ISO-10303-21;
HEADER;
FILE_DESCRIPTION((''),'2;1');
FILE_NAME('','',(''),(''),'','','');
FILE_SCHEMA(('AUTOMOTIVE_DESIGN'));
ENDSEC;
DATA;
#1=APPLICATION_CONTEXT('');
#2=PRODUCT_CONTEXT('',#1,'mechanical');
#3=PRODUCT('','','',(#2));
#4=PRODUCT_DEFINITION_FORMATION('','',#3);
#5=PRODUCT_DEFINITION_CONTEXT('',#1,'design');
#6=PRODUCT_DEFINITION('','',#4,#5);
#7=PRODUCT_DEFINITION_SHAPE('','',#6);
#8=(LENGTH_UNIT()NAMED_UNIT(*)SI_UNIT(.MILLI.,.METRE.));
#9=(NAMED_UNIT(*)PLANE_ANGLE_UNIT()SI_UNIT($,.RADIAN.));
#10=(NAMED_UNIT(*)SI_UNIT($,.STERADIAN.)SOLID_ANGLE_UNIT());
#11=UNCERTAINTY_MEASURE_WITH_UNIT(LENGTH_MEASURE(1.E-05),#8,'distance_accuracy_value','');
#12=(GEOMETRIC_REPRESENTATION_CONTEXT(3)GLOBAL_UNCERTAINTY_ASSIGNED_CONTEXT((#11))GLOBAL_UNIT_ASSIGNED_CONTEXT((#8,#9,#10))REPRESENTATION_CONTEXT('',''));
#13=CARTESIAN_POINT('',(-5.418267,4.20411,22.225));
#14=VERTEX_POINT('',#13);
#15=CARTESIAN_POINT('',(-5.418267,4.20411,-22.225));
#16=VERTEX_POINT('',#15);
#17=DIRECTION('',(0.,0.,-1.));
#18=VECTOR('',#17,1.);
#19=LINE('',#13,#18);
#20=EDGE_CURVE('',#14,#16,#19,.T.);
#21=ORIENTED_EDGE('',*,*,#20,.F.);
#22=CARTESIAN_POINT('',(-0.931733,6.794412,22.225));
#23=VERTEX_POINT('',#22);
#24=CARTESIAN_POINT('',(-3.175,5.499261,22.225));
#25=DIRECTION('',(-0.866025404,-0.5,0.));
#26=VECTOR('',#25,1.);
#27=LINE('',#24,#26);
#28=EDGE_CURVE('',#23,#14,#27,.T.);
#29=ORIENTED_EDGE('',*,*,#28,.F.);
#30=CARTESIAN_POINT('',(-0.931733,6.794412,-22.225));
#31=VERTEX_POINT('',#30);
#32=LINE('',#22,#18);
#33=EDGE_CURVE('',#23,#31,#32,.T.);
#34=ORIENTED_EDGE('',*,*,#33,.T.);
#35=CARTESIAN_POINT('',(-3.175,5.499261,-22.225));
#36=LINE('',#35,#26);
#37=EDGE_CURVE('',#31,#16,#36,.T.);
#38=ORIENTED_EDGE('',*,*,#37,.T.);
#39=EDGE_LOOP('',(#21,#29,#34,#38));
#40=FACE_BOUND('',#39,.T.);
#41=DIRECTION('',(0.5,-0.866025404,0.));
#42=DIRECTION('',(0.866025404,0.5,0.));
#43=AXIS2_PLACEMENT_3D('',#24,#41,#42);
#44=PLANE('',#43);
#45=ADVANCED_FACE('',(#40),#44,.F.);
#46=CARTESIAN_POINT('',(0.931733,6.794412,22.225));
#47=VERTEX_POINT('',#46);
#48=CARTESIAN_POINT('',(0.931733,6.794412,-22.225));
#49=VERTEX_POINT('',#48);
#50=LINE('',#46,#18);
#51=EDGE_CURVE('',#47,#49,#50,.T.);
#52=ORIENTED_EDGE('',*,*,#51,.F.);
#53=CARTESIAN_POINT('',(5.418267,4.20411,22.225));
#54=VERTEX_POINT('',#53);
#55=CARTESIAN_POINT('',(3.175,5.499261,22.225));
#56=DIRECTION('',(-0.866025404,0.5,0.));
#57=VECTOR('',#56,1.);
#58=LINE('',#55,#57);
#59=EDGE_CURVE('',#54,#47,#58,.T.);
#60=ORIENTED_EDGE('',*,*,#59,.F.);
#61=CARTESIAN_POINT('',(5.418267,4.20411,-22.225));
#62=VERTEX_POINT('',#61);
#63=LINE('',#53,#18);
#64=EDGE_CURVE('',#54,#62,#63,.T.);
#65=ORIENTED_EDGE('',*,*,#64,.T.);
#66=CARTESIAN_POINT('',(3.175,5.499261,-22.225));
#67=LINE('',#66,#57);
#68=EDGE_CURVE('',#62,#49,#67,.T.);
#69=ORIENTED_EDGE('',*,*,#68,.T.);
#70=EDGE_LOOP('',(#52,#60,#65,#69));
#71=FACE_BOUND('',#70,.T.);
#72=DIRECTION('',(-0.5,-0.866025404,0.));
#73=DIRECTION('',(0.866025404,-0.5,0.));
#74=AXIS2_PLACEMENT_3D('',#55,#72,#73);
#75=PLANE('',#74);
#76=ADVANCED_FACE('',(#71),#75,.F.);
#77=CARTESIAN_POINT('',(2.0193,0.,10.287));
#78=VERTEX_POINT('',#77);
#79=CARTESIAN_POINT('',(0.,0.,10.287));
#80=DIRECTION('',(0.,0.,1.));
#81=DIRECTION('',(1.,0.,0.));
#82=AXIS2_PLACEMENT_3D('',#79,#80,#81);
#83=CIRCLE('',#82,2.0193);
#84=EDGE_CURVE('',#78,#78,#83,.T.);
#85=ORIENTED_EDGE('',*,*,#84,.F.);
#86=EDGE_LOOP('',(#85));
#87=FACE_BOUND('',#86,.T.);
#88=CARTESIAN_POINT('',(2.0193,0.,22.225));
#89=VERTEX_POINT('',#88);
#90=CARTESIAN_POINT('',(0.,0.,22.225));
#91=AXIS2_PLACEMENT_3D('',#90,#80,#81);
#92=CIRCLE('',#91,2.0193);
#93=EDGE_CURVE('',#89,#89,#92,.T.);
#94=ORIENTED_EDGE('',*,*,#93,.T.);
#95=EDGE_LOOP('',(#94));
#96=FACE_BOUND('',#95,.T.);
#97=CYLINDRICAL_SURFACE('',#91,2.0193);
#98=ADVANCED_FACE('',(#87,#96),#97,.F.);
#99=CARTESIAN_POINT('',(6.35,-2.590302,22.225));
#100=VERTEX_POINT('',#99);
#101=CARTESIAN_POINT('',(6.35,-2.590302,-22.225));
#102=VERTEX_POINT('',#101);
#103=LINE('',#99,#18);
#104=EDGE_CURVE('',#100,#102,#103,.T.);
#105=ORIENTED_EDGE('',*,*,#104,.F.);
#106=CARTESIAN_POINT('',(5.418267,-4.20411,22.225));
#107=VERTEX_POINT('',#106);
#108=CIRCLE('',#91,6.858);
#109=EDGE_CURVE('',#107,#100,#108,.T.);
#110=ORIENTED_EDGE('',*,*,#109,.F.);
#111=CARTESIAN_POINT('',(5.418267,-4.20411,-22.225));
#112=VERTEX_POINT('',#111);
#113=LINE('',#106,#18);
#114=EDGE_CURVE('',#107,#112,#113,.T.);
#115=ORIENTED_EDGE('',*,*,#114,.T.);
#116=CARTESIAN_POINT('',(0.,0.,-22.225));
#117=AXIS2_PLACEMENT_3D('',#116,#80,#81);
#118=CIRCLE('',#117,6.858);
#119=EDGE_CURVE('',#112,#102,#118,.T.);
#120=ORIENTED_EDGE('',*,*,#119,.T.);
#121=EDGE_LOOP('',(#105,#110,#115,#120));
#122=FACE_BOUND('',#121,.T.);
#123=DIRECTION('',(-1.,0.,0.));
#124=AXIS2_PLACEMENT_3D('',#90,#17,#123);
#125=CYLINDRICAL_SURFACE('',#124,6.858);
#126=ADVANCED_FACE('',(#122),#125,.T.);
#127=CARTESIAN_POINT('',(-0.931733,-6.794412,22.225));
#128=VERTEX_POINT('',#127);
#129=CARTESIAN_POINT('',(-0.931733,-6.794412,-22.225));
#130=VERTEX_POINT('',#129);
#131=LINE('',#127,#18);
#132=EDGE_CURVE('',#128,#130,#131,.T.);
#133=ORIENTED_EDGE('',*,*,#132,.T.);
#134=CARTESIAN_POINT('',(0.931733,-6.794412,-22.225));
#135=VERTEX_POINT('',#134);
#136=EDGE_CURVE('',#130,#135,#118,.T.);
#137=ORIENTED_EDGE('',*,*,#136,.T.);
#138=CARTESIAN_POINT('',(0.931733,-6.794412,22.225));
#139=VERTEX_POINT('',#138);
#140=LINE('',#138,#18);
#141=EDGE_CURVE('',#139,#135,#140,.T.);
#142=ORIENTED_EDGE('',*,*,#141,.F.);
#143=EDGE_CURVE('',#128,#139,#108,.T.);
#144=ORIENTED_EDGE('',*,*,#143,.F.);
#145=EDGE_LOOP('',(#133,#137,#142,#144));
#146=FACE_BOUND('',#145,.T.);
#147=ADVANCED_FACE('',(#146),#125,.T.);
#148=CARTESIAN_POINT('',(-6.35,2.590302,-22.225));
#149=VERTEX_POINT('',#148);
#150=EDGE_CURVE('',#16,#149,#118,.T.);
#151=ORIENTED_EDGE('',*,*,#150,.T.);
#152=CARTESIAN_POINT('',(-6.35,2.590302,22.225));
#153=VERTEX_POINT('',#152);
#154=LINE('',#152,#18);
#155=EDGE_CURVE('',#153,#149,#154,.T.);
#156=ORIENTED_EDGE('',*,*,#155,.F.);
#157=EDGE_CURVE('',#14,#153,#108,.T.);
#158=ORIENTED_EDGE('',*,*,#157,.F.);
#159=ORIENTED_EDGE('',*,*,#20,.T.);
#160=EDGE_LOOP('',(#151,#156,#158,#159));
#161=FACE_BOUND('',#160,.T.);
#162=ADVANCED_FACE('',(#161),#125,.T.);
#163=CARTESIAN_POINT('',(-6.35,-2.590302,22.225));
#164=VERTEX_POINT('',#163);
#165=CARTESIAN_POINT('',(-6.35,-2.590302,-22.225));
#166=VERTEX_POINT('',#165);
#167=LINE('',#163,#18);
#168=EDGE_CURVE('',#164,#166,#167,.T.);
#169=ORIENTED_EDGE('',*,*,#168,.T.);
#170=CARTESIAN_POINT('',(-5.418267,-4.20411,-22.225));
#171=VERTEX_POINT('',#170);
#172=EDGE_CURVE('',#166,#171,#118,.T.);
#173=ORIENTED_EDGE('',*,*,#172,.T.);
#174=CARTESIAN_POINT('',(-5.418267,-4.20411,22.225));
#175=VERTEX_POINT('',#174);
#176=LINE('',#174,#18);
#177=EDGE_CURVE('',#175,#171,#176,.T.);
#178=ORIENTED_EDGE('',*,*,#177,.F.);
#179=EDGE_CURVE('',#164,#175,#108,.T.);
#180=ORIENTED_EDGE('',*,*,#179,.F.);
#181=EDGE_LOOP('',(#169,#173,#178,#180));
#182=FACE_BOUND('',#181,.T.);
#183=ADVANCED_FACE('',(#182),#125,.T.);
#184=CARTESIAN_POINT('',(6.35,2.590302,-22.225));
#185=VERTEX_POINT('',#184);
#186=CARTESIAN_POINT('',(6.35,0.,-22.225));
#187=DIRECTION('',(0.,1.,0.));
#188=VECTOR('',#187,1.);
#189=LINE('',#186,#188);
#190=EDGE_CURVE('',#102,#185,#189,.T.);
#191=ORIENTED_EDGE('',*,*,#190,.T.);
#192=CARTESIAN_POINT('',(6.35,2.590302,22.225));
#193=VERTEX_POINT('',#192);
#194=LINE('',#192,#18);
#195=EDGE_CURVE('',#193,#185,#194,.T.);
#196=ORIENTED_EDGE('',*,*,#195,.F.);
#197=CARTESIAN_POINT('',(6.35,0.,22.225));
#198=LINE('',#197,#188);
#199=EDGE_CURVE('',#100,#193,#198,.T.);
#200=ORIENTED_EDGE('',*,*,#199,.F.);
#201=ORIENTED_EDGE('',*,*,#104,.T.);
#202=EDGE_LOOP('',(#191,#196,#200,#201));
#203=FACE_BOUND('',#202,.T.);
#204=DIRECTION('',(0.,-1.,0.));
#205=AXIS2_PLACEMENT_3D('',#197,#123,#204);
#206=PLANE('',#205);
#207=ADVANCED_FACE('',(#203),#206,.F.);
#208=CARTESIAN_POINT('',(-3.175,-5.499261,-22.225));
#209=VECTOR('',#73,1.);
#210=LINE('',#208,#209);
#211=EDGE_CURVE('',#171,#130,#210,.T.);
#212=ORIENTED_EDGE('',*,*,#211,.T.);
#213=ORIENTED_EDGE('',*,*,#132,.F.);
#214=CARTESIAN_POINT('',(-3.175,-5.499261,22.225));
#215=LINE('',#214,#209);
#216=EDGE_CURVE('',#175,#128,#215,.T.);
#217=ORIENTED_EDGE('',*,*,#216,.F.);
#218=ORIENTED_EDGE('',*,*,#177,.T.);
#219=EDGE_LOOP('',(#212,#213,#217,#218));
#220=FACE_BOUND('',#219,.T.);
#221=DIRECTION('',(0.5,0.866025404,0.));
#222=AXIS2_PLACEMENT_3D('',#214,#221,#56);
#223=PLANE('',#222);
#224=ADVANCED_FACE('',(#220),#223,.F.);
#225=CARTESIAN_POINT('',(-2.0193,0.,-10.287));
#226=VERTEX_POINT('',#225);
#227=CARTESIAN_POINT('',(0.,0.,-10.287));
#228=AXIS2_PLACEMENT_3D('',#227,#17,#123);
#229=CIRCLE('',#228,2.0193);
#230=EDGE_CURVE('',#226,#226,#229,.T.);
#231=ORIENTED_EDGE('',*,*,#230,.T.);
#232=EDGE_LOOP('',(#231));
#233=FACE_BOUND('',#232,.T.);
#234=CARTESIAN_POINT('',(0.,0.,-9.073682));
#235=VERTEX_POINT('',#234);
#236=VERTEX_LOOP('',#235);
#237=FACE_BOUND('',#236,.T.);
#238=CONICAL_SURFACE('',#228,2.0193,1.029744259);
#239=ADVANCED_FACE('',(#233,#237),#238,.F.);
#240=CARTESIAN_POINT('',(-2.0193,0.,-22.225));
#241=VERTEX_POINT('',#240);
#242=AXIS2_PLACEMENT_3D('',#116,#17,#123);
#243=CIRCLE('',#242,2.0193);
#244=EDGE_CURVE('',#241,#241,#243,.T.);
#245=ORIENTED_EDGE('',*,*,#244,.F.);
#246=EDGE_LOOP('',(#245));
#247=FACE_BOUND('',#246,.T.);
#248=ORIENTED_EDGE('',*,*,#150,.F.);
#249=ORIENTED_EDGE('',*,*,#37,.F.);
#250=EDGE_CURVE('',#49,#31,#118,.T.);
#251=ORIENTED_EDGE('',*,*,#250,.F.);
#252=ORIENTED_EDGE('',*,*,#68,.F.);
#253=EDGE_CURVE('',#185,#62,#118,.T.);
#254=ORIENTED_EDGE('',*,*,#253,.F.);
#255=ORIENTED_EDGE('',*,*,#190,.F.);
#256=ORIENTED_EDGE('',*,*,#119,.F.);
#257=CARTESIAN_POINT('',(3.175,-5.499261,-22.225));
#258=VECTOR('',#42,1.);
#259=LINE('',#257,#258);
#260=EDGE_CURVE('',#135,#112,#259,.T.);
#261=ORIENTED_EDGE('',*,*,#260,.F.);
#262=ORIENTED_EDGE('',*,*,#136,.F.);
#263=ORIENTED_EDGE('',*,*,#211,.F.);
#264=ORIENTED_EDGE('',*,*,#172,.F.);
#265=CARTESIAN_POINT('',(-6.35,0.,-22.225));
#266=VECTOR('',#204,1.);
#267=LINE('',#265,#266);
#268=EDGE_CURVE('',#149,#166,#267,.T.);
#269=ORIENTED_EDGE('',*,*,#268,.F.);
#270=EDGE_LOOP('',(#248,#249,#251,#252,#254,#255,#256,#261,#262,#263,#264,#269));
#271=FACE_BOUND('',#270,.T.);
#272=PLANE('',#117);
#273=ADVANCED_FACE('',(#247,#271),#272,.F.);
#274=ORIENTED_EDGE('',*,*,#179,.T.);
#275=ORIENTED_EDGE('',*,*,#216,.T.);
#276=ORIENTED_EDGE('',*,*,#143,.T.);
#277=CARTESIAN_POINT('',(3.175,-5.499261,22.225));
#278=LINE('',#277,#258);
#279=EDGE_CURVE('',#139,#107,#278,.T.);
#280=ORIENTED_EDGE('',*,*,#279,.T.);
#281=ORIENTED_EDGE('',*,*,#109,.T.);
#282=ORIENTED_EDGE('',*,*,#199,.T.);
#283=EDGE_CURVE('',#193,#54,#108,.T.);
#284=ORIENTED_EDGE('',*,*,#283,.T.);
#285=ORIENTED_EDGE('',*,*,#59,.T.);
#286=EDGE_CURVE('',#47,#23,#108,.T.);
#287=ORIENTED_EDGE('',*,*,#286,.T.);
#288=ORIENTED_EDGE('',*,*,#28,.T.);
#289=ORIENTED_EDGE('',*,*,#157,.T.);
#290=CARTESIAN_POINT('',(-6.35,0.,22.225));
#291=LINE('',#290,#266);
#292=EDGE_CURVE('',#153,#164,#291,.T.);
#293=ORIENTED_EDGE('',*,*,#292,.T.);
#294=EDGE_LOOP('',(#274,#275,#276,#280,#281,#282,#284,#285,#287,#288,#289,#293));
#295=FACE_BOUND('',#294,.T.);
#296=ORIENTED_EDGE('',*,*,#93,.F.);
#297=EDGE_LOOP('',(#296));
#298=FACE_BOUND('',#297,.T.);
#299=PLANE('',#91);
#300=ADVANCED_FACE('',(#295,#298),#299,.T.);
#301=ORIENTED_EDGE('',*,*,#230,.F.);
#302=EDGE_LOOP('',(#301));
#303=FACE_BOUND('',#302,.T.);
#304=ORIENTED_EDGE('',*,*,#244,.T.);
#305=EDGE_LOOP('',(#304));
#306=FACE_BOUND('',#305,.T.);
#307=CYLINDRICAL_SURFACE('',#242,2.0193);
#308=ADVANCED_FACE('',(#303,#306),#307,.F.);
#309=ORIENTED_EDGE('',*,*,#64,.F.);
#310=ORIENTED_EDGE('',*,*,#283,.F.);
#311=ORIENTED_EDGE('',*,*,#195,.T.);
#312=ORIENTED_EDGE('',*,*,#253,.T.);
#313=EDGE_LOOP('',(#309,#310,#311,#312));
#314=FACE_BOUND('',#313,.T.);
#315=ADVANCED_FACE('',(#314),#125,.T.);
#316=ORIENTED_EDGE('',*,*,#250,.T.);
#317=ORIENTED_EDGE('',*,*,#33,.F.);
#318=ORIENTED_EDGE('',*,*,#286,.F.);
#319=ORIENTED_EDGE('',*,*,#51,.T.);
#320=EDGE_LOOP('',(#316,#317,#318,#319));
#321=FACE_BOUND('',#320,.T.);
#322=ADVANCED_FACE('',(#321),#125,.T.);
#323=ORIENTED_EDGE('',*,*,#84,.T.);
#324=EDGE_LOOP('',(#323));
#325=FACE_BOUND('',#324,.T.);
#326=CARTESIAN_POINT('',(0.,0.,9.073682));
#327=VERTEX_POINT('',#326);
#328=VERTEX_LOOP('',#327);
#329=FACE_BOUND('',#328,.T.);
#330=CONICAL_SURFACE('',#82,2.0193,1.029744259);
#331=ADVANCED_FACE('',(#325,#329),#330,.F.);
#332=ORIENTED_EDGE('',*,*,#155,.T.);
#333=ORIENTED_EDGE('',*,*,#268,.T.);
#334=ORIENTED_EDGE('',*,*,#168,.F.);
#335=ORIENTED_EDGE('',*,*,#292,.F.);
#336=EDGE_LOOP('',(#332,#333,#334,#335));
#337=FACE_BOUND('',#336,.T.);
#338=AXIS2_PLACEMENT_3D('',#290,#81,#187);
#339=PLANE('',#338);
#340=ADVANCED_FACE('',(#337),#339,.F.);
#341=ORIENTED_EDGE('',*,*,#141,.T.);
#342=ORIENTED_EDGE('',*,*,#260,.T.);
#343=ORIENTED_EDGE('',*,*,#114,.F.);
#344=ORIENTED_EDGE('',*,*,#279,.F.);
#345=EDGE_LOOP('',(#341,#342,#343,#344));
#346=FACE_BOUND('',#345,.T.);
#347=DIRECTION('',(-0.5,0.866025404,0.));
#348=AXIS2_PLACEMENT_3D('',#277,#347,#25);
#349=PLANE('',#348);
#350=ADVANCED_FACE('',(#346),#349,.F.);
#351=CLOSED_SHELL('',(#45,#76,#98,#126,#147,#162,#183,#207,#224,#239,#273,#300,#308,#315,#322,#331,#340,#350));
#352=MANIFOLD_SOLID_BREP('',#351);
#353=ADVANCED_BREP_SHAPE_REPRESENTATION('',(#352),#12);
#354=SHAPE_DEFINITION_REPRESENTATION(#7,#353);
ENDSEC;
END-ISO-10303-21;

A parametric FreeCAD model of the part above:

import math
import FreeCAD as App
import Part
import Sketcher
from FreeCAD import Vector
Q = App.Units.Quantity

doc = App.newDocument("Part")
body = doc.addObject("PartDesign::Body", "Body")

sketch1 = doc.addObject("Sketcher::SketchObject", "Sketch")
body.addObject(sketch1)
sketch1.AttachmentSupport = (doc.XY_Plane, [""])
sketch1.MapMode = "FlatFace"
sketch1.addGeometry(Part.ArcOfCircle(Part.Circle(Vector(0, 0, 0), Vector(0, 0, 1), 6.858), math.radians(82.191607), math.radians(97.808393)), False)
sketch1.addGeometry(Part.LineSegment(Vector(-0.931733, 6.794412, 0), Vector(-5.418267, 4.20411, 0)), False)
sketch1.addGeometry(Part.ArcOfCircle(Part.Circle(Vector(0, 0, 0), Vector(0, 0, 1), 6.858), math.radians(142.191607), math.radians(157.808393)), False)
sketch1.addGeometry(Part.LineSegment(Vector(-6.35, 2.590302, 0), Vector(-6.35, -2.590302, 0)), False)
sketch1.addGeometry(Part.ArcOfCircle(Part.Circle(Vector(0, 0, 0), Vector(0, 0, 1), 6.858), math.radians(-157.808393), math.radians(-142.191607)), False)
sketch1.addGeometry(Part.LineSegment(Vector(-5.418267, -4.20411, 0), Vector(-0.931733, -6.794412, 0)), False)
sketch1.addGeometry(Part.ArcOfCircle(Part.Circle(Vector(0, 0, 0), Vector(0, 0, 1), 6.858), math.radians(-97.808393), math.radians(-82.191607)), False)
sketch1.addGeometry(Part.LineSegment(Vector(0.931733, -6.794412, 0), Vector(5.418267, -4.20411, 0)), False)
sketch1.addGeometry(Part.ArcOfCircle(Part.Circle(Vector(0, 0, 0), Vector(0, 0, 1), 6.858), math.radians(-37.808393), math.radians(-22.191607)), False)
sketch1.addGeometry(Part.LineSegment(Vector(6.35, -2.590302, 0), Vector(6.35, 2.590302, 0)), False)
sketch1.addGeometry(Part.ArcOfCircle(Part.Circle(Vector(0, 0, 0), Vector(0, 0, 1), 6.858), math.radians(22.191607), math.radians(37.808393)), False)
sketch1.addGeometry(Part.LineSegment(Vector(5.418267, 4.20411, 0), Vector(0.931733, 6.794412, 0)), False)
sketch1.addConstraint(Sketcher.Constraint("Coincident", 0, 2, 1, 1))
sketch1.addConstraint(Sketcher.Constraint("Coincident", 1, 2, 2, 1))
sketch1.addConstraint(Sketcher.Constraint("Coincident", 2, 2, 3, 1))
sketch1.addConstraint(Sketcher.Constraint("Coincident", 3, 2, 4, 1))
sketch1.addConstraint(Sketcher.Constraint("Coincident", 4, 2, 5, 1))
sketch1.addConstraint(Sketcher.Constraint("Coincident", 5, 2, 6, 1))
sketch1.addConstraint(Sketcher.Constraint("Coincident", 6, 2, 7, 1))
sketch1.addConstraint(Sketcher.Constraint("Coincident", 7, 2, 8, 1))
sketch1.addConstraint(Sketcher.Constraint("Coincident", 8, 2, 9, 1))
sketch1.addConstraint(Sketcher.Constraint("Coincident", 9, 2, 10, 1))
sketch1.addConstraint(Sketcher.Constraint("Coincident", 10, 2, 11, 1))
sketch1.addConstraint(Sketcher.Constraint("Coincident", 11, 2, 0, 1))
sketch1.addConstraint(Sketcher.Constraint("Vertical", 3))
sketch1.addConstraint(Sketcher.Constraint("Vertical", 9))
sketch1.addConstraint(Sketcher.Constraint("Coincident", 0, 3, -1, 1))
sketch1.addConstraint(Sketcher.Constraint("Coincident", 2, 3, -1, 1))
sketch1.addConstraint(Sketcher.Constraint("Coincident", 4, 3, -1, 1))
sketch1.addConstraint(Sketcher.Constraint("Coincident", 6, 3, -1, 1))
sketch1.addConstraint(Sketcher.Constraint("Coincident", 8, 3, -1, 1))
sketch1.addConstraint(Sketcher.Constraint("Coincident", 10, 3, -1, 1))
sketch1.addConstraint(Sketcher.Constraint("Equal", 0, 2))
sketch1.addConstraint(Sketcher.Constraint("Equal", 2, 4))
sketch1.addConstraint(Sketcher.Constraint("Equal", 4, 6))
sketch1.addConstraint(Sketcher.Constraint("Equal", 6, 8))
sketch1.addConstraint(Sketcher.Constraint("Equal", 8, 10))
sketch1.addConstraint(Sketcher.Constraint("Parallel", 1, 7))
sketch1.addConstraint(Sketcher.Constraint("Parallel", 5, 11))
sketch1.addConstraint(Sketcher.Constraint("Horizontal", 5, 2, 6, 2))
sketch1.addConstraint(Sketcher.Constraint("Horizontal", 4, 2, 7, 2))
sketch1.addConstraint(Sketcher.Constraint("Horizontal", 3, 2, 8, 2))
sketch1.addConstraint(Sketcher.Constraint("Horizontal", 1, 2, 10, 2))
sketch1.addConstraint(Sketcher.Constraint("Vertical", 1, 2, 4, 2))
sketch1.addConstraint(Sketcher.Constraint("Radius", 0, Q("0.27 in")))
sketch1.addConstraint(Sketcher.Constraint("Angle", 1, Q("-150 deg")))
sketch1.addConstraint(Sketcher.Constraint("DistanceX", 2, 2, -1, 1, Q("0.25 in")))
sketch1.addConstraint(Sketcher.Constraint("DistanceX", 4, 2, 6, 2, Q("0.25 in")))
pad1 = doc.addObject("PartDesign::Pad", "Pad")
body.addObject(pad1)
pad1.Profile = sketch1
pad1.Length = Q("1.75 in")
pad1.Midplane = True

sketch2 = doc.addObject("Sketcher::SketchObject", "Sketch001")
body.addObject(sketch2)
sketch2.AttachmentSupport = (doc.XY_Plane, [""])
sketch2.MapMode = "FlatFace"
sketch2.AttachmentOffset = App.Placement(Vector(0, 0, -0.875 * 25.4), App.Rotation())
sketch2.addGeometry(Part.Circle(Vector(0, 0, 0), Vector(0, 0, 1), 2.0193), False)
sketch2.addConstraint(Sketcher.Constraint("Coincident", 0, 3, -1, 1))
sketch2.addConstraint(Sketcher.Constraint("Diameter", 0, Q("0.159 in")))
doc.recompute()
hole = doc.addObject("PartDesign::Hole", "Hole")
body.addObject(hole)
hole.Profile = sketch2
hole.ThreadType = "None"
hole.Diameter = Q("0.159 in")
hole.DepthType = "Dimension"
hole.Depth = Q("0.47 in")
hole.DrillPoint = "Angled"
hole.DrillPointAngle = 118
hole.Reversed = True

sketch3 = doc.addObject("Sketcher::SketchObject", "Sketch002")
body.addObject(sketch3)
sketch3.AttachmentSupport = (doc.XY_Plane, [""])
sketch3.MapMode = "FlatFace"
sketch3.AttachmentOffset = App.Placement(Vector(0, 0, 0.875 * 25.4), App.Rotation())
sketch3.addGeometry(Part.Circle(Vector(0, 0, 0), Vector(0, 0, 1), 2.0193), False)
sketch3.addConstraint(Sketcher.Constraint("Coincident", 0, 3, -1, 1))
sketch3.addConstraint(Sketcher.Constraint("Diameter", 0, Q("0.159 in")))
doc.recompute()
hole2 = doc.addObject("PartDesign::Hole", "Hole001")
body.addObject(hole2)
hole2.Profile = sketch3
hole2.ThreadType = "None"
hole2.Diameter = Q("0.159 in")
hole2.DepthType = "Dimension"
hole2.Depth = Q("0.47 in")
hole2.DrillPoint = "Angled"
hole2.DrillPointAngle = 118

doc.recompute()
